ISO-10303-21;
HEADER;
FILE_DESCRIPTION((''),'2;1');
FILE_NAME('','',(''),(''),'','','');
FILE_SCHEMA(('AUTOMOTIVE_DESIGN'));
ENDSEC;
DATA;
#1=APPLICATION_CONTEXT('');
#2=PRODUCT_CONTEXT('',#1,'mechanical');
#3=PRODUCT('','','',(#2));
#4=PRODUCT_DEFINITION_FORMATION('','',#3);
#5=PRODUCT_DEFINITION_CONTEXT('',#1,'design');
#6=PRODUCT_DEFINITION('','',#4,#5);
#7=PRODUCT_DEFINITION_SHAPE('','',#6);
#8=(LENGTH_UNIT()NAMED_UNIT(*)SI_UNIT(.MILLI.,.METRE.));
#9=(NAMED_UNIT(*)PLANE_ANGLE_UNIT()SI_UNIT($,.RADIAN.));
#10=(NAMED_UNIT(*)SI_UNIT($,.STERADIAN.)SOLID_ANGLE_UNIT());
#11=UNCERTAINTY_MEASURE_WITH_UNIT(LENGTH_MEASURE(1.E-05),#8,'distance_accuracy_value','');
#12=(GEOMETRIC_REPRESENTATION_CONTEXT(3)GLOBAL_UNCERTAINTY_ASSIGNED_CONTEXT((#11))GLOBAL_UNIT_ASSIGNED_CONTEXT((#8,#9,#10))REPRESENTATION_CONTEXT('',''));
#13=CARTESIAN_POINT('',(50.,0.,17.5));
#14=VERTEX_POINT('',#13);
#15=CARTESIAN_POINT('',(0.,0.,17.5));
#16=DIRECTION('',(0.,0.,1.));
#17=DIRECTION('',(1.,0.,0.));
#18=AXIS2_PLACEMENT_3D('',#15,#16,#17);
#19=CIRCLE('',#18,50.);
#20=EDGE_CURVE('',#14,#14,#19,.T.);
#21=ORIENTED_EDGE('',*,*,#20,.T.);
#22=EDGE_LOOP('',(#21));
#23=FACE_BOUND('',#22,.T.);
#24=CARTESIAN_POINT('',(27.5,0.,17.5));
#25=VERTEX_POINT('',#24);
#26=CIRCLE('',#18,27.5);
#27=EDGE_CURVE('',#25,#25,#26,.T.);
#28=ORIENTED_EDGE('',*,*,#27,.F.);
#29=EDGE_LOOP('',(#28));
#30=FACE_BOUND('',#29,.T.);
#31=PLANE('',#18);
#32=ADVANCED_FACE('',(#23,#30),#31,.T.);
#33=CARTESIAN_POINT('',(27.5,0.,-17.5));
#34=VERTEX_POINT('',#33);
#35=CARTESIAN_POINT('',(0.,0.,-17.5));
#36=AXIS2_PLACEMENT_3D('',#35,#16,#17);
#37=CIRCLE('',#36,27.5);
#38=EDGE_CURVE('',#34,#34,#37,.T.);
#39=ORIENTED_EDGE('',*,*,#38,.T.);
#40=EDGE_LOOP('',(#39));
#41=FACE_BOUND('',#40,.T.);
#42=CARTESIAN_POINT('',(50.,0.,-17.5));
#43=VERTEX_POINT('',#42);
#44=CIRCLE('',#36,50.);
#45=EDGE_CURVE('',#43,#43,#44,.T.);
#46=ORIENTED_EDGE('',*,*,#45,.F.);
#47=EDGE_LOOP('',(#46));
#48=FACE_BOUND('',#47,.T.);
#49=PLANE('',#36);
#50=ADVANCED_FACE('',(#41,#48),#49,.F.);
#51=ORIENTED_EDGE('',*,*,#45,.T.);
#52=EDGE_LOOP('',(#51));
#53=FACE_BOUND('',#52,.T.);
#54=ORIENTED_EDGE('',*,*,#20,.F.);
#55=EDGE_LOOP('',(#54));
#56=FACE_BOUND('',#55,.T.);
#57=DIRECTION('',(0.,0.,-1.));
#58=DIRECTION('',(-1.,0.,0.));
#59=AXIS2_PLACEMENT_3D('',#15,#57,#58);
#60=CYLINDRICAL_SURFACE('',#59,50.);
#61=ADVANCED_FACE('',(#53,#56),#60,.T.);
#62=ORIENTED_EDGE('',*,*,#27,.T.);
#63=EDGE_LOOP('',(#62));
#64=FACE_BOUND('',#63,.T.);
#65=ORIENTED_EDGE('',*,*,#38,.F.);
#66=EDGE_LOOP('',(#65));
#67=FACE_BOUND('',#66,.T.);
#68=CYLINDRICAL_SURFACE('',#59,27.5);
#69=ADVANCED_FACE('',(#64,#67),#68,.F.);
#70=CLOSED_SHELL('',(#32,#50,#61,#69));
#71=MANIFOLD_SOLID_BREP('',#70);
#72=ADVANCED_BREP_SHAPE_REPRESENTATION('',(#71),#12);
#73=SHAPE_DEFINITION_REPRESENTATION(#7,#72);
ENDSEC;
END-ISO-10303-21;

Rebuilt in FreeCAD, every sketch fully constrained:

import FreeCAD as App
import Part
import Sketcher

doc = App.newDocument("Part")
params = doc.addObject("Spreadsheet::Sheet", "Params")
for row, (alias, value) in enumerate([
    ("sketch1_diameter", "100 mm"),
    ("sketch1_diameter2", "55 mm"),
    ("pad1_length", "35 mm"),
], start=1):
    params.set(f"A{row}", alias)
    params.set(f"B{row}", "=" + value)
    params.setAlias(f"B{row}", alias)

body = doc.addObject("PartDesign::Body", "Body")

sketch1 = body.newObject("Sketcher::SketchObject", "Sketch")
sketch1.AttachmentSupport = (doc.getObject("XY_Plane"), [""])
sketch1.MapMode = "FlatFace"
sketch1.AttachmentOffset = App.Placement(App.Vector(0, 0, -17.5), App.Rotation())
sketch1.addGeometry([
    Part.Circle(App.Vector(0, 0, 0), App.Vector(0, 0, 1), 50),
    Part.Circle(App.Vector(0, 0, 0), App.Vector(0, 0, 1), 28),
], False)
sketch1.addConstraint([
    Sketcher.Constraint("Coincident", 0, 3, -1, 1),
    Sketcher.Constraint("Coincident", 1, 3, -1, 1),
    Sketcher.Constraint("Diameter", 0, 100.0),
    Sketcher.Constraint("Diameter", 1, 55.0),
])
sketch1.setExpression("Constraints[2]", "Params.sketch1_diameter")
sketch1.setExpression("Constraints[3]", "Params.sketch1_diameter2")
pad1 = body.newObject("PartDesign::Pad", "Pad")
pad1.Profile = sketch1
pad1.setExpression("Length", "Params.pad1_length")

doc.recompute()
